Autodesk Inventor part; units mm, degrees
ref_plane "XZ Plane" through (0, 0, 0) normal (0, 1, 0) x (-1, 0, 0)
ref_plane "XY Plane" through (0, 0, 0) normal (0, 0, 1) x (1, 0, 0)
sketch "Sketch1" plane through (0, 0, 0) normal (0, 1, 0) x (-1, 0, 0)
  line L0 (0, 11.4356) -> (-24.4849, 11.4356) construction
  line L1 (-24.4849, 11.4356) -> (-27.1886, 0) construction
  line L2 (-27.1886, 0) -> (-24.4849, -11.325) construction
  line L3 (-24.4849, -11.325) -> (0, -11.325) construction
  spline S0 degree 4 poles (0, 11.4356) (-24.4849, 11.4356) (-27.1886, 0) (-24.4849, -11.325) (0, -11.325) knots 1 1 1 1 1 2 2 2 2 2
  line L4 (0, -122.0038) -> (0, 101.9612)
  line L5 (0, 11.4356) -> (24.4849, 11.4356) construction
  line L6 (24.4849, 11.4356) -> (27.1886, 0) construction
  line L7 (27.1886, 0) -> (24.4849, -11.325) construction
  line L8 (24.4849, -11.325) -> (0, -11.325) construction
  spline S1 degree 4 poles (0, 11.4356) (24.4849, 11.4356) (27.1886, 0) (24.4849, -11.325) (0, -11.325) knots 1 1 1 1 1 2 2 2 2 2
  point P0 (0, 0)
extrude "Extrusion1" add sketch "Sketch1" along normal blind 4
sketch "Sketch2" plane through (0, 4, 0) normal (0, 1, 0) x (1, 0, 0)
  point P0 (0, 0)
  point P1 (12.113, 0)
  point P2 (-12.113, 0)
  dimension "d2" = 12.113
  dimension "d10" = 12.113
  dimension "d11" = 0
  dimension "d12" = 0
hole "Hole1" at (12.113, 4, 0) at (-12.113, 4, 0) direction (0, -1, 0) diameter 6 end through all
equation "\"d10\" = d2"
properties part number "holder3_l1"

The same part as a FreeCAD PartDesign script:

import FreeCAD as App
import Part
import Sketcher
from FreeCAD import Vector
Q = App.Units.Quantity

doc = App.newDocument("Part")
body = doc.addObject("PartDesign::Body", "Body")

# Sketch on XZ plane
sketch1 = body.newObject("Sketcher::SketchObject", "Sketch")
sketch1.AttachmentSupport = (doc.getObject("XZ_Plane"), [""])
sketch1.MapMode = "FlatFace"
sketch1.addGeometry(Part.BSplineCurve([Vector(0, 11.4356, 0), Vector(24.4849, 11.4356, 0), Vector(27.1886, 0, 0), Vector(24.4849, -11.325, 0), Vector(0, -11.325, 0)], [5, 5], [1, 2], False, 4, [1, 1, 1, 1, 1], False), False)
sketch1.addGeometry(Part.BSplineCurve([Vector(0, 11.4356, 0), Vector(-24.4849, 11.4356, 0), Vector(-27.1886, 0, 0), Vector(-24.4849, -11.325, 0), Vector(0, -11.325, 0)], [5, 5], [1, 2], False, 4, [1, 1, 1, 1, 1], False), False)
sketch1.addConstraint(Sketcher.Constraint("Block", 0))
sketch1.addConstraint(Sketcher.Constraint("Block", 1))
pad1 = body.newObject("PartDesign::Pad", "Pad")
pad1.Profile = sketch1
pad1.Length = 4
pad1.Reversed = True

# Sketch on XZ plane
sketch2 = body.newObject("Sketcher::SketchObject", "Sketch001")
sketch2.AttachmentSupport = (doc.getObject("XZ_Plane"), [""])
sketch2.MapMode = "FlatFace"
sketch2.AttachmentOffset = App.Placement(Vector(0, 0, -4), App.Rotation())
sketch2.addGeometry(Part.Circle(Vector(12.1, 0, 0), Vector(0, 0, 1), 3), False)
sketch2.addGeometry(Part.Circle(Vector(-12.1, 0, 0), Vector(0, 0, 1), 3), False)
sketch2.addConstraint(Sketcher.Constraint("Equal", 0, 1))
sketch2.addConstraint(Sketcher.Constraint("Symmetric", 0, 3, 1, 3, -1, 1))
sketch2.addConstraint(Sketcher.Constraint("PointOnObject", 0, 3, -1))
sketch2.addConstraint(Sketcher.Constraint("Diameter", 0, Q("6 mm")))
sketch2.addConstraint(Sketcher.Constraint("DistanceX", -1, 1, 0, 3, Q("12.113 mm")))
doc.recompute()
hole = body.newObject("PartDesign::Hole", "Hole")
hole.Profile = sketch2
hole.ThreadType = "None"
hole.Diameter = 6
hole.DepthType = "ThroughAll"
hole.Reversed = True

doc.recompute()
